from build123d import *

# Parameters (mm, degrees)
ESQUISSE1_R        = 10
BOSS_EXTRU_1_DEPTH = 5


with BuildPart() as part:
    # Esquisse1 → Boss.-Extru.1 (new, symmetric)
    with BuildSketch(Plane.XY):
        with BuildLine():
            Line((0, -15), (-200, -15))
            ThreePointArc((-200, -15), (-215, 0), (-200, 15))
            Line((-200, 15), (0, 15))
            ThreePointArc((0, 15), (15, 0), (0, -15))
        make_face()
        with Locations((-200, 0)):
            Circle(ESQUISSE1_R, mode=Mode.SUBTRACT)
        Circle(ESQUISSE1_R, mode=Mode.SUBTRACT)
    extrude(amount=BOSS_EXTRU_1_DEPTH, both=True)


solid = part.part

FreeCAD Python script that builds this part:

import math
import FreeCAD as App
import Part
import Sketcher
from FreeCAD import Vector
Q = App.Units.Quantity

doc = App.newDocument("Part")
body = doc.addObject("PartDesign::Body", "Body")

# Sketch on XY plane
sketch1 = body.newObject("Sketcher::SketchObject", "Sketch")
sketch1.AttachmentSupport = (doc.getObject("XY_Plane"), [""])
sketch1.MapMode = "FlatFace"
sketch1.addGeometry([
    Part.LineSegment(Vector(-200, -15, 0), Vector(0, -15, 0)),  # 0
    Part.ArcOfCircle(Part.Circle(Vector(0, 0, 0), Vector(0, 0, 1), 15), math.radians(-90), math.radians(90)),  # 1
    Part.LineSegment(Vector(0, 15, 0), Vector(-200, 15, 0)),  # 2
    Part.ArcOfCircle(Part.Circle(Vector(-200, 0, 0), Vector(0, 0, 1), 15), math.radians(90), math.radians(270)),  # 3
    Part.Circle(Vector(0, 0, 0), Vector(0, 0, 1), 10),  # 4
    Part.Circle(Vector(-200, 0, 0), Vector(0, 0, 1), 10),  # 5
], False)
sketch1.addConstraint([
    Sketcher.Constraint("Tangent", 0, 2, 1, 1),
    Sketcher.Constraint("Tangent", 1, 2, 2, 1),
    Sketcher.Constraint("Tangent", 2, 2, 3, 1),
    Sketcher.Constraint("Tangent", 3, 2, 0, 1),
    Sketcher.Constraint("Horizontal", 0),
    Sketcher.Constraint("Horizontal", 2),
    Sketcher.Constraint("Coincident", 1, 3, -1, 1),
    Sketcher.Constraint("Coincident", 4, 3, -1, 1),
    Sketcher.Constraint("Coincident", 5, 3, 3, 3),
    Sketcher.Constraint("Equal", 4, 5),
    Sketcher.Constraint("Diameter", 4, Q("20 mm")),
    Sketcher.Constraint("Radius", 1, Q("15 mm")),
    Sketcher.Constraint("DistanceX", 0, 1, 0, 2, Q("200 mm")),
])
pad1 = body.newObject("PartDesign::Pad", "Pad")
pad1.Profile = sketch1
pad1.Length = 10
pad1.Midplane = True

doc.recompute()
